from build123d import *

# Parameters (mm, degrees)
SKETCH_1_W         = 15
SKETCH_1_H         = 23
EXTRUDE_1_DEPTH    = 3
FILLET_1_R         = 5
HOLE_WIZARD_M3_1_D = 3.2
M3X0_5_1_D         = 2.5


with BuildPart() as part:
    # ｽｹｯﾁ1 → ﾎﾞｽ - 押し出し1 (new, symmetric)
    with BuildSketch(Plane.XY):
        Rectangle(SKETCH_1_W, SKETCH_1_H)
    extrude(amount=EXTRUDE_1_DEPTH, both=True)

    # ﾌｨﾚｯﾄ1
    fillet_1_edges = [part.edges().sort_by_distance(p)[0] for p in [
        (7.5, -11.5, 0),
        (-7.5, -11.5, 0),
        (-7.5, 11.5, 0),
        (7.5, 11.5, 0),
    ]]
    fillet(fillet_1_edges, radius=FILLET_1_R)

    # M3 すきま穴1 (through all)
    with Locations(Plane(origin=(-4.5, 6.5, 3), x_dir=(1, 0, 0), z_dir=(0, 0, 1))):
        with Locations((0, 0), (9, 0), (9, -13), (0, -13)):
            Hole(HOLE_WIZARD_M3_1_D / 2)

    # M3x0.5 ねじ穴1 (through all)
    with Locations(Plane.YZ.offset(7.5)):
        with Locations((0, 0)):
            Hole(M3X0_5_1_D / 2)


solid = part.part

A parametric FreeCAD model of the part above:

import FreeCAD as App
import Part
import Sketcher


def edges_at(feature, points):
    """Names of the edges that pass closest to the given points."""
    edges = feature.Shape.Edges
    near = lambda p: min(range(len(edges)), key=lambda i: edges[i].distToShape(Part.Vertex(*p))[0])
    return sorted({f"Edge{near(p) + 1}" for p in points})


def add_polygon(sketch, points):
    """Adds a closed chain of lines whose ends are joined by coincident constraints."""
    first, n = sketch.GeometryCount, len(points)
    for a, b in zip(points, points[1:] + points[:1]):
        sketch.addGeometry(Part.LineSegment(App.Vector(*a, 0), App.Vector(*b, 0)), False)
    for i in range(n):
        sketch.addConstraint(Sketcher.Constraint("Coincident", first + i, 2, first + (i + 1) % n, 1))

doc = App.newDocument("Part")
params = doc.addObject("Spreadsheet::Sheet", "Params")
for row, (alias, value) in enumerate([
    ("sketch1_width", "15 mm"),
    ("sketch1_height", "23 mm"),
    ("pad1_length", "6 mm"),
    ("fillet_radius", "5 mm"),
    ("sketch2_diameter", "3.2 mm"),
    ("hole_diameter", "3.2 mm"),
    ("sketch3_diameter", "2.5 mm"),
    ("hole2_diameter", "2.5 mm"),
], start=1):
    params.set(f"A{row}", alias)
    params.set(f"B{row}", "=" + value)
    params.setAlias(f"B{row}", alias)

body = doc.addObject("PartDesign::Body", "Body")

sketch1 = body.newObject("Sketcher::SketchObject", "Sketch")
sketch1.AttachmentSupport = (doc.getObject("XY_Plane"), [""])
sketch1.MapMode = "FlatFace"
add_polygon(sketch1, [(-8, 12), (-8, -12), (8, -12), (8, 12)])
sketch1.addConstraint([
    Sketcher.Constraint("Vertical", 0),
    Sketcher.Constraint("Horizontal", 1),
    Sketcher.Constraint("Vertical", 2),
    Sketcher.Constraint("Horizontal", 3),
    Sketcher.Constraint("Symmetric", 0, 2, 2, 2, -1, 1),
    Sketcher.Constraint("DistanceX", 1, 1, 1, 2, 15.0),
    Sketcher.Constraint("DistanceY", 0, 2, 0, 1, 23.0),
])
sketch1.setExpression("Constraints[9]", "Params.sketch1_width")
sketch1.setExpression("Constraints[10]", "Params.sketch1_height")
pad1 = body.newObject("PartDesign::Pad", "Pad")
pad1.Profile = sketch1
pad1.setExpression("Length", "Params.pad1_length")
pad1.Midplane = True
doc.recompute()

fillet = body.newObject("PartDesign::Fillet", "Fillet")
fillet.Base = (pad1, edges_at(pad1, [
    (7.5, -11.5, 0),
    (-7.5, -11.5, 0),
    (-7.5, 11.5, 0),
    (7.5, 11.5, 0),
]))
fillet.setExpression("Radius", "Params.fillet_radius")

sketch2 = body.newObject("Sketcher::SketchObject", "Sketch001")
sketch2.AttachmentSupport = (doc.getObject("XY_Plane"), [""])
sketch2.MapMode = "FlatFace"
sketch2.AttachmentOffset = App.Placement(App.Vector(0, 0, 3), App.Rotation())
sketch2.addGeometry([
    Part.Circle(App.Vector(-4.5, 6.5, 0), App.Vector(0, 0, 1), 1.6),
    Part.Circle(App.Vector(4.5, 6.5, 0), App.Vector(0, 0, 1), 1.6),
    Part.Circle(App.Vector(4.5, -6.5, 0), App.Vector(0, 0, 1), 1.6),
    Part.Circle(App.Vector(-4.5, -6.5, 0), App.Vector(0, 0, 1), 1.6),
], False)
sketch2.addConstraint([
    Sketcher.Constraint("Equal", 0, 1),
    Sketcher.Constraint("Equal", 1, 2),
    Sketcher.Constraint("Equal", 2, 3),
    Sketcher.Constraint("Symmetric", 0, 3, 2, 3, -1, 1),
    Sketcher.Constraint("Symmetric", 1, 3, 3, 3, -1, 1),
    Sketcher.Constraint("Symmetric", 0, 3, 1, 3, -2),
    Sketcher.Constraint("Diameter", 0, 3.2),
    Sketcher.Constraint("DistanceX", 0, 3, 1, 3, 9.0),
    Sketcher.Constraint("DistanceY", 2, 3, 1, 3, 13.0),
])
sketch2.setExpression("Constraints[6]", "Params.sketch2_diameter")
doc.recompute()
hole = body.newObject("PartDesign::Hole", "Hole")
hole.Profile = sketch2
hole.ThreadType = "None"
hole.setExpression("Diameter", "Params.hole_diameter")
hole.DepthType = "ThroughAll"

sketch3 = body.newObject("Sketcher::SketchObject", "Sketch002")
sketch3.AttachmentSupport = (doc.getObject("YZ_Plane"), [""])
sketch3.MapMode = "FlatFace"
sketch3.AttachmentOffset = App.Placement(App.Vector(0, 0, 7.5), App.Rotation())
sketch3.addGeometry(Part.Circle(App.Vector(0, 0, 0), App.Vector(0, 0, 1), 1.2), False)
sketch3.addConstraint([
    Sketcher.Constraint("Coincident", 0, 3, -1, 1),
    Sketcher.Constraint("Diameter", 0, 2.5),
])
sketch3.setExpression("Constraints[1]", "Params.sketch3_diameter")
doc.recompute()
hole2 = body.newObject("PartDesign::Hole", "Hole001")
hole2.Profile = sketch3
hole2.ThreadType = "None"
hole2.setExpression("Diameter", "Params.hole2_diameter")
hole2.DepthType = "ThroughAll"

doc.recompute()
